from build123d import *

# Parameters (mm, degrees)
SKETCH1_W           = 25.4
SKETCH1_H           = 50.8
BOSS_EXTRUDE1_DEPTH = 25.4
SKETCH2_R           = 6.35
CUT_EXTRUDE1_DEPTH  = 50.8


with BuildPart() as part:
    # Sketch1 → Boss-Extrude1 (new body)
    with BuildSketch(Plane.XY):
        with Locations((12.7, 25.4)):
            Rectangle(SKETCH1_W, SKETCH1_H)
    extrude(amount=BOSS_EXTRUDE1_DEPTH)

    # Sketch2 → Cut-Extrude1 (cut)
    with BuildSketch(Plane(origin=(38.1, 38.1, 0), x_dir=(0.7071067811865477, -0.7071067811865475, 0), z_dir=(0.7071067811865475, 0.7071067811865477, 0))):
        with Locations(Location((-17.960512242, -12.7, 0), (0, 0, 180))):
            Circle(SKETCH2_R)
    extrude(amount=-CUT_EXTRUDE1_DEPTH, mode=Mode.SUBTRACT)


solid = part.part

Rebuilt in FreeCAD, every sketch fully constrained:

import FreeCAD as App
import Part
import Sketcher
Q = App.Units.Quantity


def add_polygon(sketch, points):
    """Adds a closed chain of lines whose ends are joined by coincident constraints."""
    first, n = sketch.GeometryCount, len(points)
    for a, b in zip(points, points[1:] + points[:1]):
        sketch.addGeometry(Part.LineSegment(App.Vector(*a, 0), App.Vector(*b, 0)), False)
    for i in range(n):
        sketch.addConstraint(Sketcher.Constraint("Coincident", first + i, 2, first + (i + 1) % n, 1))

doc = App.newDocument("Part")
body = doc.addObject("PartDesign::Body", "Body")

sketch1 = body.newObject("Sketcher::SketchObject", "Sketch")
sketch1.AttachmentSupport = (doc.getObject("XY_Plane"), [""])
sketch1.MapMode = "FlatFace"
add_polygon(sketch1, [(0, 51), (0, 0), (25, 0), (25, 51)])
sketch1.addConstraint([
    Sketcher.Constraint("Vertical", 0),
    Sketcher.Constraint("Horizontal", 1),
    Sketcher.Constraint("Vertical", 2),
    Sketcher.Constraint("Horizontal", 3),
    Sketcher.Constraint("Coincident", 0, 2, -1, 1),
    Sketcher.Constraint("DistanceX", 1, 1, 1, 2, Q("1 in")),
    Sketcher.Constraint("DistanceY", 0, 2, 0, 1, Q("2 in")),
])
pad1 = body.newObject("PartDesign::Pad", "Pad")
pad1.Profile = sketch1
pad1.Length = Q("1 in")

sketch2 = body.newObject("Sketcher::SketchObject", "Sketch001")
sketch2.Placement = App.Placement(App.Vector(38.1, 38.1, 0), App.Rotation(App.Vector(0.707106781, -0.707106781, 0), App.Vector(0, 0, -0.999999999), App.Vector(0.707106781, 0.707106781, 0), "ZXY"))
sketch2.addGeometry(Part.Circle(App.Vector(-18, -13, 0), App.Vector(0, 0, 1), 6), False)
sketch2.addConstraint([
    Sketcher.Constraint("Diameter", 0, Q("0.5 in")),
    Sketcher.Constraint("DistanceY", 0, 3, -1, 1, Q("0.5 in")),
    Sketcher.Constraint("DistanceX", 0, 3, -1, 1, 17.960512),
])
pocket1 = body.newObject("PartDesign::Pocket", "Pocket")
pocket1.Profile = sketch2
pocket1.Length = Q("2 in")

doc.recompute()
